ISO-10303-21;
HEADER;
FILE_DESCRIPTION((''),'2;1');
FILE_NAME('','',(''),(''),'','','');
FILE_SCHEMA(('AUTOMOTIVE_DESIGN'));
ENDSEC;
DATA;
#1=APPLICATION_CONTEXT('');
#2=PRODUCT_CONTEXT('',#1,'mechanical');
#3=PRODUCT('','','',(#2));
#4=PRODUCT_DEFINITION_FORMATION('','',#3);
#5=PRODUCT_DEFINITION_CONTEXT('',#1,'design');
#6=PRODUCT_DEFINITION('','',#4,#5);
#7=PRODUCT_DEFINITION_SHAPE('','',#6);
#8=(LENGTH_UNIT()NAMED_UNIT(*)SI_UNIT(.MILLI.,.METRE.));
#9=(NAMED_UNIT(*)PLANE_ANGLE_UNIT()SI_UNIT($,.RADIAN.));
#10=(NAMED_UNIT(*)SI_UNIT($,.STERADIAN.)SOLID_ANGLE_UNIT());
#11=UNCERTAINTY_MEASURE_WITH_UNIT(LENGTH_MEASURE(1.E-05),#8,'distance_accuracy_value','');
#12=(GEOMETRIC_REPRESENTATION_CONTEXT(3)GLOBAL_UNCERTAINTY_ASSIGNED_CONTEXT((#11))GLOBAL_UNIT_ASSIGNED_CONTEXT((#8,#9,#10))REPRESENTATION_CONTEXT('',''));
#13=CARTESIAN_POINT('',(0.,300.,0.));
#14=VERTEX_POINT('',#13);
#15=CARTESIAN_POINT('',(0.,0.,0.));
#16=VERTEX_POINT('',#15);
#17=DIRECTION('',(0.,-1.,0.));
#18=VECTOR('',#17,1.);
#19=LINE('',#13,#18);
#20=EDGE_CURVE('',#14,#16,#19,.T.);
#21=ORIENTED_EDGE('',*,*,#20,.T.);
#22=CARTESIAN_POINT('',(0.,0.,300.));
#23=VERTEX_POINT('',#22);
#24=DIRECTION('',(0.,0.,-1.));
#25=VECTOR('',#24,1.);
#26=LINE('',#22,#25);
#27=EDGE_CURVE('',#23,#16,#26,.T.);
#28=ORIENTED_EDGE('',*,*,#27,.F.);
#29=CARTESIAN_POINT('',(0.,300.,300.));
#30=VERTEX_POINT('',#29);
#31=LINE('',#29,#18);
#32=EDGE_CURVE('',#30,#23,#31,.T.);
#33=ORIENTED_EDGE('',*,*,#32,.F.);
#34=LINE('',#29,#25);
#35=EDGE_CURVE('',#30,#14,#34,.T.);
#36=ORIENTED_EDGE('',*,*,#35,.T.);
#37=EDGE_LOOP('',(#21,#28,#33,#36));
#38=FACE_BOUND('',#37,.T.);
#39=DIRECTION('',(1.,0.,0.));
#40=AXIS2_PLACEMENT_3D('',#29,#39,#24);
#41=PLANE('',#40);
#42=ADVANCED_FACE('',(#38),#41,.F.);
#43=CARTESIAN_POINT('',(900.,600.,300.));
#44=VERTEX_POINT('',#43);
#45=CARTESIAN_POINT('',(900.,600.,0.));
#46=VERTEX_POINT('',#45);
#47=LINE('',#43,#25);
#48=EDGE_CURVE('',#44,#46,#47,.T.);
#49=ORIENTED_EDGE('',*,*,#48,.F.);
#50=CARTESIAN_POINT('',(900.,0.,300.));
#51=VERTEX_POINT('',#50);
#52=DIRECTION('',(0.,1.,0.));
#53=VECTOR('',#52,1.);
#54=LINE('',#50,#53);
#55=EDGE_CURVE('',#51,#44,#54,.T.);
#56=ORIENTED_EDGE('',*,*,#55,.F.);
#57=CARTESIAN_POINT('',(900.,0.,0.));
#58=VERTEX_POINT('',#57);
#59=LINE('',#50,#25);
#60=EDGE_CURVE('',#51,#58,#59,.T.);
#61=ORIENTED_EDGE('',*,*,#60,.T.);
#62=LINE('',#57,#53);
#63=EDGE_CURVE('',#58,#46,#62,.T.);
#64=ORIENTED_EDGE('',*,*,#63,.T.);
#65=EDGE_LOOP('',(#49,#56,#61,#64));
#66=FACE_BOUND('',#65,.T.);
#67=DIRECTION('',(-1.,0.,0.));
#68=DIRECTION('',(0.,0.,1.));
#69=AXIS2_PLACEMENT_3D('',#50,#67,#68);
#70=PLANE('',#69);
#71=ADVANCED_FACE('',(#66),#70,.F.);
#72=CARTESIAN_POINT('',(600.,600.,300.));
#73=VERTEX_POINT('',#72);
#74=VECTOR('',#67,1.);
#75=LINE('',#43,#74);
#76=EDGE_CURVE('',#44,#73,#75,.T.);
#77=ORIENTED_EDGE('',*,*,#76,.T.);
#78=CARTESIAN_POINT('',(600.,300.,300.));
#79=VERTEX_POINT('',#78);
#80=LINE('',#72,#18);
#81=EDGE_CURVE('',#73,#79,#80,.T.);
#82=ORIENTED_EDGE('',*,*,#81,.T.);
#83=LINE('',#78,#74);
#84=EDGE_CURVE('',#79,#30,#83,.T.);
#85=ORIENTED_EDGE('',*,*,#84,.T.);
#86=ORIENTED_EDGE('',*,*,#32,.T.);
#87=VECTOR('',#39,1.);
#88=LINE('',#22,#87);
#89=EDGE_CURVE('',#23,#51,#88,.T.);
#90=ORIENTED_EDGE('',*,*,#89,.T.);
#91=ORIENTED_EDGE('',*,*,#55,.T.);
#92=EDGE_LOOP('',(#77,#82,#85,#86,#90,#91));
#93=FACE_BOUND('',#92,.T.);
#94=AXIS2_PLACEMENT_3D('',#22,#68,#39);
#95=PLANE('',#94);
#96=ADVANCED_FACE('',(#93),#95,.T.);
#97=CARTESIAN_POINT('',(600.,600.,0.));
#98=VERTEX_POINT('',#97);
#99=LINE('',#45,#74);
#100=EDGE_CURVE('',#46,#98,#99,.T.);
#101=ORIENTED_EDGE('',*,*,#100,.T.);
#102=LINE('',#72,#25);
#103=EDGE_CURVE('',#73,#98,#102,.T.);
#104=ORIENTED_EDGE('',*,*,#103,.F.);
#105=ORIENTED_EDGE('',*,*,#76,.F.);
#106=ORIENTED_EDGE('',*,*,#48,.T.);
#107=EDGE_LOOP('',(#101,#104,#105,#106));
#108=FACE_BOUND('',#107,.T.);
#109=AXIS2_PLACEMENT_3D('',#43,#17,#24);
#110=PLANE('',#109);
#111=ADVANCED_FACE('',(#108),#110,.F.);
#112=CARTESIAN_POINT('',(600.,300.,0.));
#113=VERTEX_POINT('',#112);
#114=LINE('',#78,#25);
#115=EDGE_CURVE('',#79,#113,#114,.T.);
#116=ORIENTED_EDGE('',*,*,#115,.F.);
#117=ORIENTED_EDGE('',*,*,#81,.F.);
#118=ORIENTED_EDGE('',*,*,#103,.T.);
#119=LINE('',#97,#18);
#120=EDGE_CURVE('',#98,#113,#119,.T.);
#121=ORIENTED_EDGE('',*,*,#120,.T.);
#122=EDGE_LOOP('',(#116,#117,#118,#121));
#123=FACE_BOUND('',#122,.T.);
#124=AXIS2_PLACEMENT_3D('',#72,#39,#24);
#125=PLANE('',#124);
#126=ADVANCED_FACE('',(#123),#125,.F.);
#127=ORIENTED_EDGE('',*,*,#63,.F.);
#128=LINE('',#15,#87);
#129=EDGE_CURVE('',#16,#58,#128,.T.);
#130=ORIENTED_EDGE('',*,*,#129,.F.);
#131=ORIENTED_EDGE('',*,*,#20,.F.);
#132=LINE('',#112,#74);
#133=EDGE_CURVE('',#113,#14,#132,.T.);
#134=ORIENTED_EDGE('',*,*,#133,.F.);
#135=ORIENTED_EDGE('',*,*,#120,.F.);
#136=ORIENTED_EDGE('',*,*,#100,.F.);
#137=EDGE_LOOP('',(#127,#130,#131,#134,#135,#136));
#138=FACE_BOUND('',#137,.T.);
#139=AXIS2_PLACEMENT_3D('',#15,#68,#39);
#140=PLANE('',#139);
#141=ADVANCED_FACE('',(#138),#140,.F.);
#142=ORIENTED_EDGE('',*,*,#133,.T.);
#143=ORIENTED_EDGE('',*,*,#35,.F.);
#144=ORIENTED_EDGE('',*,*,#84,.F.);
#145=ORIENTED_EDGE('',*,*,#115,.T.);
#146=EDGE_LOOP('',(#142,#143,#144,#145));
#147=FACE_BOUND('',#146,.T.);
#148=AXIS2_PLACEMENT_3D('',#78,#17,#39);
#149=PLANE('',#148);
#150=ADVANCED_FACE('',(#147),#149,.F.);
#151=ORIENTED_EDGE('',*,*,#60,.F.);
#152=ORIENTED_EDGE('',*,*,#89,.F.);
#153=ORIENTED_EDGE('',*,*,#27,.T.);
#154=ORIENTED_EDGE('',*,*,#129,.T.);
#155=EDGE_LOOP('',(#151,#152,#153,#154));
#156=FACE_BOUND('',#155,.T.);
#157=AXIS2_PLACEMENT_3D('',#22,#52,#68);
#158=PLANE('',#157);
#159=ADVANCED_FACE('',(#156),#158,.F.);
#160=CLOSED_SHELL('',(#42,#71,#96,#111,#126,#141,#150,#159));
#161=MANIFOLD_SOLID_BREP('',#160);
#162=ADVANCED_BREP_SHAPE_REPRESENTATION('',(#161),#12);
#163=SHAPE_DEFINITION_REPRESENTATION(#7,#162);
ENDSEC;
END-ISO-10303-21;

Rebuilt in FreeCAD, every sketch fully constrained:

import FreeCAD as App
import Part
import Sketcher
from FreeCAD import Vector


def add_polygon(sketch, points):
    """Adds a closed chain of lines whose ends are joined by coincident constraints."""
    first, n = sketch.GeometryCount, len(points)
    for a, b in zip(points, points[1:] + points[:1]):
        sketch.addGeometry(Part.LineSegment(App.Vector(*a, 0), App.Vector(*b, 0)), False)
    for i in range(n):
        sketch.addConstraint(Sketcher.Constraint("Coincident", first + i, 2, first + (i + 1) % n, 1))

doc = App.newDocument("Part")
body = doc.addObject("PartDesign::Body", "Body")

# Sketch on XY plane
sketch1 = doc.addObject("Sketcher::SketchObject", "Sketch")
body.addObject(sketch1)
sketch1.AttachmentSupport = (doc.XY_Plane, [""])
sketch1.MapMode = "FlatFace"
add_polygon(sketch1, [(0, 0), (900, 0), (900, 600), (600, 600), (600, 300), (0, 300)])  # lines 0-5
sketch1.addConstraint(Sketcher.Constraint("Horizontal", 0))
sketch1.addConstraint(Sketcher.Constraint("Vertical", 1))
sketch1.addConstraint(Sketcher.Constraint("Horizontal", 2))
sketch1.addConstraint(Sketcher.Constraint("Vertical", 3))
sketch1.addConstraint(Sketcher.Constraint("Horizontal", 4))
sketch1.addConstraint(Sketcher.Constraint("Vertical", 5))
sketch1.addConstraint(Sketcher.Constraint("Coincident", 5, 2, -1, 1))
sketch1.addConstraint(Sketcher.Constraint("Equal", 4, 1))
sketch1.addConstraint(Sketcher.Constraint("Equal", 2, 3))
sketch1.addConstraint(Sketcher.Constraint("Equal", 3, 5))
sketch1.addConstraint(Sketcher.Constraint("DistanceX", 0, 1, 0, 2, 900.0))
pad1 = doc.addObject("PartDesign::Pad", "Pad")
body.addObject(pad1)
pad1.Profile = sketch1
pad1.Length = 300

doc.recompute()
